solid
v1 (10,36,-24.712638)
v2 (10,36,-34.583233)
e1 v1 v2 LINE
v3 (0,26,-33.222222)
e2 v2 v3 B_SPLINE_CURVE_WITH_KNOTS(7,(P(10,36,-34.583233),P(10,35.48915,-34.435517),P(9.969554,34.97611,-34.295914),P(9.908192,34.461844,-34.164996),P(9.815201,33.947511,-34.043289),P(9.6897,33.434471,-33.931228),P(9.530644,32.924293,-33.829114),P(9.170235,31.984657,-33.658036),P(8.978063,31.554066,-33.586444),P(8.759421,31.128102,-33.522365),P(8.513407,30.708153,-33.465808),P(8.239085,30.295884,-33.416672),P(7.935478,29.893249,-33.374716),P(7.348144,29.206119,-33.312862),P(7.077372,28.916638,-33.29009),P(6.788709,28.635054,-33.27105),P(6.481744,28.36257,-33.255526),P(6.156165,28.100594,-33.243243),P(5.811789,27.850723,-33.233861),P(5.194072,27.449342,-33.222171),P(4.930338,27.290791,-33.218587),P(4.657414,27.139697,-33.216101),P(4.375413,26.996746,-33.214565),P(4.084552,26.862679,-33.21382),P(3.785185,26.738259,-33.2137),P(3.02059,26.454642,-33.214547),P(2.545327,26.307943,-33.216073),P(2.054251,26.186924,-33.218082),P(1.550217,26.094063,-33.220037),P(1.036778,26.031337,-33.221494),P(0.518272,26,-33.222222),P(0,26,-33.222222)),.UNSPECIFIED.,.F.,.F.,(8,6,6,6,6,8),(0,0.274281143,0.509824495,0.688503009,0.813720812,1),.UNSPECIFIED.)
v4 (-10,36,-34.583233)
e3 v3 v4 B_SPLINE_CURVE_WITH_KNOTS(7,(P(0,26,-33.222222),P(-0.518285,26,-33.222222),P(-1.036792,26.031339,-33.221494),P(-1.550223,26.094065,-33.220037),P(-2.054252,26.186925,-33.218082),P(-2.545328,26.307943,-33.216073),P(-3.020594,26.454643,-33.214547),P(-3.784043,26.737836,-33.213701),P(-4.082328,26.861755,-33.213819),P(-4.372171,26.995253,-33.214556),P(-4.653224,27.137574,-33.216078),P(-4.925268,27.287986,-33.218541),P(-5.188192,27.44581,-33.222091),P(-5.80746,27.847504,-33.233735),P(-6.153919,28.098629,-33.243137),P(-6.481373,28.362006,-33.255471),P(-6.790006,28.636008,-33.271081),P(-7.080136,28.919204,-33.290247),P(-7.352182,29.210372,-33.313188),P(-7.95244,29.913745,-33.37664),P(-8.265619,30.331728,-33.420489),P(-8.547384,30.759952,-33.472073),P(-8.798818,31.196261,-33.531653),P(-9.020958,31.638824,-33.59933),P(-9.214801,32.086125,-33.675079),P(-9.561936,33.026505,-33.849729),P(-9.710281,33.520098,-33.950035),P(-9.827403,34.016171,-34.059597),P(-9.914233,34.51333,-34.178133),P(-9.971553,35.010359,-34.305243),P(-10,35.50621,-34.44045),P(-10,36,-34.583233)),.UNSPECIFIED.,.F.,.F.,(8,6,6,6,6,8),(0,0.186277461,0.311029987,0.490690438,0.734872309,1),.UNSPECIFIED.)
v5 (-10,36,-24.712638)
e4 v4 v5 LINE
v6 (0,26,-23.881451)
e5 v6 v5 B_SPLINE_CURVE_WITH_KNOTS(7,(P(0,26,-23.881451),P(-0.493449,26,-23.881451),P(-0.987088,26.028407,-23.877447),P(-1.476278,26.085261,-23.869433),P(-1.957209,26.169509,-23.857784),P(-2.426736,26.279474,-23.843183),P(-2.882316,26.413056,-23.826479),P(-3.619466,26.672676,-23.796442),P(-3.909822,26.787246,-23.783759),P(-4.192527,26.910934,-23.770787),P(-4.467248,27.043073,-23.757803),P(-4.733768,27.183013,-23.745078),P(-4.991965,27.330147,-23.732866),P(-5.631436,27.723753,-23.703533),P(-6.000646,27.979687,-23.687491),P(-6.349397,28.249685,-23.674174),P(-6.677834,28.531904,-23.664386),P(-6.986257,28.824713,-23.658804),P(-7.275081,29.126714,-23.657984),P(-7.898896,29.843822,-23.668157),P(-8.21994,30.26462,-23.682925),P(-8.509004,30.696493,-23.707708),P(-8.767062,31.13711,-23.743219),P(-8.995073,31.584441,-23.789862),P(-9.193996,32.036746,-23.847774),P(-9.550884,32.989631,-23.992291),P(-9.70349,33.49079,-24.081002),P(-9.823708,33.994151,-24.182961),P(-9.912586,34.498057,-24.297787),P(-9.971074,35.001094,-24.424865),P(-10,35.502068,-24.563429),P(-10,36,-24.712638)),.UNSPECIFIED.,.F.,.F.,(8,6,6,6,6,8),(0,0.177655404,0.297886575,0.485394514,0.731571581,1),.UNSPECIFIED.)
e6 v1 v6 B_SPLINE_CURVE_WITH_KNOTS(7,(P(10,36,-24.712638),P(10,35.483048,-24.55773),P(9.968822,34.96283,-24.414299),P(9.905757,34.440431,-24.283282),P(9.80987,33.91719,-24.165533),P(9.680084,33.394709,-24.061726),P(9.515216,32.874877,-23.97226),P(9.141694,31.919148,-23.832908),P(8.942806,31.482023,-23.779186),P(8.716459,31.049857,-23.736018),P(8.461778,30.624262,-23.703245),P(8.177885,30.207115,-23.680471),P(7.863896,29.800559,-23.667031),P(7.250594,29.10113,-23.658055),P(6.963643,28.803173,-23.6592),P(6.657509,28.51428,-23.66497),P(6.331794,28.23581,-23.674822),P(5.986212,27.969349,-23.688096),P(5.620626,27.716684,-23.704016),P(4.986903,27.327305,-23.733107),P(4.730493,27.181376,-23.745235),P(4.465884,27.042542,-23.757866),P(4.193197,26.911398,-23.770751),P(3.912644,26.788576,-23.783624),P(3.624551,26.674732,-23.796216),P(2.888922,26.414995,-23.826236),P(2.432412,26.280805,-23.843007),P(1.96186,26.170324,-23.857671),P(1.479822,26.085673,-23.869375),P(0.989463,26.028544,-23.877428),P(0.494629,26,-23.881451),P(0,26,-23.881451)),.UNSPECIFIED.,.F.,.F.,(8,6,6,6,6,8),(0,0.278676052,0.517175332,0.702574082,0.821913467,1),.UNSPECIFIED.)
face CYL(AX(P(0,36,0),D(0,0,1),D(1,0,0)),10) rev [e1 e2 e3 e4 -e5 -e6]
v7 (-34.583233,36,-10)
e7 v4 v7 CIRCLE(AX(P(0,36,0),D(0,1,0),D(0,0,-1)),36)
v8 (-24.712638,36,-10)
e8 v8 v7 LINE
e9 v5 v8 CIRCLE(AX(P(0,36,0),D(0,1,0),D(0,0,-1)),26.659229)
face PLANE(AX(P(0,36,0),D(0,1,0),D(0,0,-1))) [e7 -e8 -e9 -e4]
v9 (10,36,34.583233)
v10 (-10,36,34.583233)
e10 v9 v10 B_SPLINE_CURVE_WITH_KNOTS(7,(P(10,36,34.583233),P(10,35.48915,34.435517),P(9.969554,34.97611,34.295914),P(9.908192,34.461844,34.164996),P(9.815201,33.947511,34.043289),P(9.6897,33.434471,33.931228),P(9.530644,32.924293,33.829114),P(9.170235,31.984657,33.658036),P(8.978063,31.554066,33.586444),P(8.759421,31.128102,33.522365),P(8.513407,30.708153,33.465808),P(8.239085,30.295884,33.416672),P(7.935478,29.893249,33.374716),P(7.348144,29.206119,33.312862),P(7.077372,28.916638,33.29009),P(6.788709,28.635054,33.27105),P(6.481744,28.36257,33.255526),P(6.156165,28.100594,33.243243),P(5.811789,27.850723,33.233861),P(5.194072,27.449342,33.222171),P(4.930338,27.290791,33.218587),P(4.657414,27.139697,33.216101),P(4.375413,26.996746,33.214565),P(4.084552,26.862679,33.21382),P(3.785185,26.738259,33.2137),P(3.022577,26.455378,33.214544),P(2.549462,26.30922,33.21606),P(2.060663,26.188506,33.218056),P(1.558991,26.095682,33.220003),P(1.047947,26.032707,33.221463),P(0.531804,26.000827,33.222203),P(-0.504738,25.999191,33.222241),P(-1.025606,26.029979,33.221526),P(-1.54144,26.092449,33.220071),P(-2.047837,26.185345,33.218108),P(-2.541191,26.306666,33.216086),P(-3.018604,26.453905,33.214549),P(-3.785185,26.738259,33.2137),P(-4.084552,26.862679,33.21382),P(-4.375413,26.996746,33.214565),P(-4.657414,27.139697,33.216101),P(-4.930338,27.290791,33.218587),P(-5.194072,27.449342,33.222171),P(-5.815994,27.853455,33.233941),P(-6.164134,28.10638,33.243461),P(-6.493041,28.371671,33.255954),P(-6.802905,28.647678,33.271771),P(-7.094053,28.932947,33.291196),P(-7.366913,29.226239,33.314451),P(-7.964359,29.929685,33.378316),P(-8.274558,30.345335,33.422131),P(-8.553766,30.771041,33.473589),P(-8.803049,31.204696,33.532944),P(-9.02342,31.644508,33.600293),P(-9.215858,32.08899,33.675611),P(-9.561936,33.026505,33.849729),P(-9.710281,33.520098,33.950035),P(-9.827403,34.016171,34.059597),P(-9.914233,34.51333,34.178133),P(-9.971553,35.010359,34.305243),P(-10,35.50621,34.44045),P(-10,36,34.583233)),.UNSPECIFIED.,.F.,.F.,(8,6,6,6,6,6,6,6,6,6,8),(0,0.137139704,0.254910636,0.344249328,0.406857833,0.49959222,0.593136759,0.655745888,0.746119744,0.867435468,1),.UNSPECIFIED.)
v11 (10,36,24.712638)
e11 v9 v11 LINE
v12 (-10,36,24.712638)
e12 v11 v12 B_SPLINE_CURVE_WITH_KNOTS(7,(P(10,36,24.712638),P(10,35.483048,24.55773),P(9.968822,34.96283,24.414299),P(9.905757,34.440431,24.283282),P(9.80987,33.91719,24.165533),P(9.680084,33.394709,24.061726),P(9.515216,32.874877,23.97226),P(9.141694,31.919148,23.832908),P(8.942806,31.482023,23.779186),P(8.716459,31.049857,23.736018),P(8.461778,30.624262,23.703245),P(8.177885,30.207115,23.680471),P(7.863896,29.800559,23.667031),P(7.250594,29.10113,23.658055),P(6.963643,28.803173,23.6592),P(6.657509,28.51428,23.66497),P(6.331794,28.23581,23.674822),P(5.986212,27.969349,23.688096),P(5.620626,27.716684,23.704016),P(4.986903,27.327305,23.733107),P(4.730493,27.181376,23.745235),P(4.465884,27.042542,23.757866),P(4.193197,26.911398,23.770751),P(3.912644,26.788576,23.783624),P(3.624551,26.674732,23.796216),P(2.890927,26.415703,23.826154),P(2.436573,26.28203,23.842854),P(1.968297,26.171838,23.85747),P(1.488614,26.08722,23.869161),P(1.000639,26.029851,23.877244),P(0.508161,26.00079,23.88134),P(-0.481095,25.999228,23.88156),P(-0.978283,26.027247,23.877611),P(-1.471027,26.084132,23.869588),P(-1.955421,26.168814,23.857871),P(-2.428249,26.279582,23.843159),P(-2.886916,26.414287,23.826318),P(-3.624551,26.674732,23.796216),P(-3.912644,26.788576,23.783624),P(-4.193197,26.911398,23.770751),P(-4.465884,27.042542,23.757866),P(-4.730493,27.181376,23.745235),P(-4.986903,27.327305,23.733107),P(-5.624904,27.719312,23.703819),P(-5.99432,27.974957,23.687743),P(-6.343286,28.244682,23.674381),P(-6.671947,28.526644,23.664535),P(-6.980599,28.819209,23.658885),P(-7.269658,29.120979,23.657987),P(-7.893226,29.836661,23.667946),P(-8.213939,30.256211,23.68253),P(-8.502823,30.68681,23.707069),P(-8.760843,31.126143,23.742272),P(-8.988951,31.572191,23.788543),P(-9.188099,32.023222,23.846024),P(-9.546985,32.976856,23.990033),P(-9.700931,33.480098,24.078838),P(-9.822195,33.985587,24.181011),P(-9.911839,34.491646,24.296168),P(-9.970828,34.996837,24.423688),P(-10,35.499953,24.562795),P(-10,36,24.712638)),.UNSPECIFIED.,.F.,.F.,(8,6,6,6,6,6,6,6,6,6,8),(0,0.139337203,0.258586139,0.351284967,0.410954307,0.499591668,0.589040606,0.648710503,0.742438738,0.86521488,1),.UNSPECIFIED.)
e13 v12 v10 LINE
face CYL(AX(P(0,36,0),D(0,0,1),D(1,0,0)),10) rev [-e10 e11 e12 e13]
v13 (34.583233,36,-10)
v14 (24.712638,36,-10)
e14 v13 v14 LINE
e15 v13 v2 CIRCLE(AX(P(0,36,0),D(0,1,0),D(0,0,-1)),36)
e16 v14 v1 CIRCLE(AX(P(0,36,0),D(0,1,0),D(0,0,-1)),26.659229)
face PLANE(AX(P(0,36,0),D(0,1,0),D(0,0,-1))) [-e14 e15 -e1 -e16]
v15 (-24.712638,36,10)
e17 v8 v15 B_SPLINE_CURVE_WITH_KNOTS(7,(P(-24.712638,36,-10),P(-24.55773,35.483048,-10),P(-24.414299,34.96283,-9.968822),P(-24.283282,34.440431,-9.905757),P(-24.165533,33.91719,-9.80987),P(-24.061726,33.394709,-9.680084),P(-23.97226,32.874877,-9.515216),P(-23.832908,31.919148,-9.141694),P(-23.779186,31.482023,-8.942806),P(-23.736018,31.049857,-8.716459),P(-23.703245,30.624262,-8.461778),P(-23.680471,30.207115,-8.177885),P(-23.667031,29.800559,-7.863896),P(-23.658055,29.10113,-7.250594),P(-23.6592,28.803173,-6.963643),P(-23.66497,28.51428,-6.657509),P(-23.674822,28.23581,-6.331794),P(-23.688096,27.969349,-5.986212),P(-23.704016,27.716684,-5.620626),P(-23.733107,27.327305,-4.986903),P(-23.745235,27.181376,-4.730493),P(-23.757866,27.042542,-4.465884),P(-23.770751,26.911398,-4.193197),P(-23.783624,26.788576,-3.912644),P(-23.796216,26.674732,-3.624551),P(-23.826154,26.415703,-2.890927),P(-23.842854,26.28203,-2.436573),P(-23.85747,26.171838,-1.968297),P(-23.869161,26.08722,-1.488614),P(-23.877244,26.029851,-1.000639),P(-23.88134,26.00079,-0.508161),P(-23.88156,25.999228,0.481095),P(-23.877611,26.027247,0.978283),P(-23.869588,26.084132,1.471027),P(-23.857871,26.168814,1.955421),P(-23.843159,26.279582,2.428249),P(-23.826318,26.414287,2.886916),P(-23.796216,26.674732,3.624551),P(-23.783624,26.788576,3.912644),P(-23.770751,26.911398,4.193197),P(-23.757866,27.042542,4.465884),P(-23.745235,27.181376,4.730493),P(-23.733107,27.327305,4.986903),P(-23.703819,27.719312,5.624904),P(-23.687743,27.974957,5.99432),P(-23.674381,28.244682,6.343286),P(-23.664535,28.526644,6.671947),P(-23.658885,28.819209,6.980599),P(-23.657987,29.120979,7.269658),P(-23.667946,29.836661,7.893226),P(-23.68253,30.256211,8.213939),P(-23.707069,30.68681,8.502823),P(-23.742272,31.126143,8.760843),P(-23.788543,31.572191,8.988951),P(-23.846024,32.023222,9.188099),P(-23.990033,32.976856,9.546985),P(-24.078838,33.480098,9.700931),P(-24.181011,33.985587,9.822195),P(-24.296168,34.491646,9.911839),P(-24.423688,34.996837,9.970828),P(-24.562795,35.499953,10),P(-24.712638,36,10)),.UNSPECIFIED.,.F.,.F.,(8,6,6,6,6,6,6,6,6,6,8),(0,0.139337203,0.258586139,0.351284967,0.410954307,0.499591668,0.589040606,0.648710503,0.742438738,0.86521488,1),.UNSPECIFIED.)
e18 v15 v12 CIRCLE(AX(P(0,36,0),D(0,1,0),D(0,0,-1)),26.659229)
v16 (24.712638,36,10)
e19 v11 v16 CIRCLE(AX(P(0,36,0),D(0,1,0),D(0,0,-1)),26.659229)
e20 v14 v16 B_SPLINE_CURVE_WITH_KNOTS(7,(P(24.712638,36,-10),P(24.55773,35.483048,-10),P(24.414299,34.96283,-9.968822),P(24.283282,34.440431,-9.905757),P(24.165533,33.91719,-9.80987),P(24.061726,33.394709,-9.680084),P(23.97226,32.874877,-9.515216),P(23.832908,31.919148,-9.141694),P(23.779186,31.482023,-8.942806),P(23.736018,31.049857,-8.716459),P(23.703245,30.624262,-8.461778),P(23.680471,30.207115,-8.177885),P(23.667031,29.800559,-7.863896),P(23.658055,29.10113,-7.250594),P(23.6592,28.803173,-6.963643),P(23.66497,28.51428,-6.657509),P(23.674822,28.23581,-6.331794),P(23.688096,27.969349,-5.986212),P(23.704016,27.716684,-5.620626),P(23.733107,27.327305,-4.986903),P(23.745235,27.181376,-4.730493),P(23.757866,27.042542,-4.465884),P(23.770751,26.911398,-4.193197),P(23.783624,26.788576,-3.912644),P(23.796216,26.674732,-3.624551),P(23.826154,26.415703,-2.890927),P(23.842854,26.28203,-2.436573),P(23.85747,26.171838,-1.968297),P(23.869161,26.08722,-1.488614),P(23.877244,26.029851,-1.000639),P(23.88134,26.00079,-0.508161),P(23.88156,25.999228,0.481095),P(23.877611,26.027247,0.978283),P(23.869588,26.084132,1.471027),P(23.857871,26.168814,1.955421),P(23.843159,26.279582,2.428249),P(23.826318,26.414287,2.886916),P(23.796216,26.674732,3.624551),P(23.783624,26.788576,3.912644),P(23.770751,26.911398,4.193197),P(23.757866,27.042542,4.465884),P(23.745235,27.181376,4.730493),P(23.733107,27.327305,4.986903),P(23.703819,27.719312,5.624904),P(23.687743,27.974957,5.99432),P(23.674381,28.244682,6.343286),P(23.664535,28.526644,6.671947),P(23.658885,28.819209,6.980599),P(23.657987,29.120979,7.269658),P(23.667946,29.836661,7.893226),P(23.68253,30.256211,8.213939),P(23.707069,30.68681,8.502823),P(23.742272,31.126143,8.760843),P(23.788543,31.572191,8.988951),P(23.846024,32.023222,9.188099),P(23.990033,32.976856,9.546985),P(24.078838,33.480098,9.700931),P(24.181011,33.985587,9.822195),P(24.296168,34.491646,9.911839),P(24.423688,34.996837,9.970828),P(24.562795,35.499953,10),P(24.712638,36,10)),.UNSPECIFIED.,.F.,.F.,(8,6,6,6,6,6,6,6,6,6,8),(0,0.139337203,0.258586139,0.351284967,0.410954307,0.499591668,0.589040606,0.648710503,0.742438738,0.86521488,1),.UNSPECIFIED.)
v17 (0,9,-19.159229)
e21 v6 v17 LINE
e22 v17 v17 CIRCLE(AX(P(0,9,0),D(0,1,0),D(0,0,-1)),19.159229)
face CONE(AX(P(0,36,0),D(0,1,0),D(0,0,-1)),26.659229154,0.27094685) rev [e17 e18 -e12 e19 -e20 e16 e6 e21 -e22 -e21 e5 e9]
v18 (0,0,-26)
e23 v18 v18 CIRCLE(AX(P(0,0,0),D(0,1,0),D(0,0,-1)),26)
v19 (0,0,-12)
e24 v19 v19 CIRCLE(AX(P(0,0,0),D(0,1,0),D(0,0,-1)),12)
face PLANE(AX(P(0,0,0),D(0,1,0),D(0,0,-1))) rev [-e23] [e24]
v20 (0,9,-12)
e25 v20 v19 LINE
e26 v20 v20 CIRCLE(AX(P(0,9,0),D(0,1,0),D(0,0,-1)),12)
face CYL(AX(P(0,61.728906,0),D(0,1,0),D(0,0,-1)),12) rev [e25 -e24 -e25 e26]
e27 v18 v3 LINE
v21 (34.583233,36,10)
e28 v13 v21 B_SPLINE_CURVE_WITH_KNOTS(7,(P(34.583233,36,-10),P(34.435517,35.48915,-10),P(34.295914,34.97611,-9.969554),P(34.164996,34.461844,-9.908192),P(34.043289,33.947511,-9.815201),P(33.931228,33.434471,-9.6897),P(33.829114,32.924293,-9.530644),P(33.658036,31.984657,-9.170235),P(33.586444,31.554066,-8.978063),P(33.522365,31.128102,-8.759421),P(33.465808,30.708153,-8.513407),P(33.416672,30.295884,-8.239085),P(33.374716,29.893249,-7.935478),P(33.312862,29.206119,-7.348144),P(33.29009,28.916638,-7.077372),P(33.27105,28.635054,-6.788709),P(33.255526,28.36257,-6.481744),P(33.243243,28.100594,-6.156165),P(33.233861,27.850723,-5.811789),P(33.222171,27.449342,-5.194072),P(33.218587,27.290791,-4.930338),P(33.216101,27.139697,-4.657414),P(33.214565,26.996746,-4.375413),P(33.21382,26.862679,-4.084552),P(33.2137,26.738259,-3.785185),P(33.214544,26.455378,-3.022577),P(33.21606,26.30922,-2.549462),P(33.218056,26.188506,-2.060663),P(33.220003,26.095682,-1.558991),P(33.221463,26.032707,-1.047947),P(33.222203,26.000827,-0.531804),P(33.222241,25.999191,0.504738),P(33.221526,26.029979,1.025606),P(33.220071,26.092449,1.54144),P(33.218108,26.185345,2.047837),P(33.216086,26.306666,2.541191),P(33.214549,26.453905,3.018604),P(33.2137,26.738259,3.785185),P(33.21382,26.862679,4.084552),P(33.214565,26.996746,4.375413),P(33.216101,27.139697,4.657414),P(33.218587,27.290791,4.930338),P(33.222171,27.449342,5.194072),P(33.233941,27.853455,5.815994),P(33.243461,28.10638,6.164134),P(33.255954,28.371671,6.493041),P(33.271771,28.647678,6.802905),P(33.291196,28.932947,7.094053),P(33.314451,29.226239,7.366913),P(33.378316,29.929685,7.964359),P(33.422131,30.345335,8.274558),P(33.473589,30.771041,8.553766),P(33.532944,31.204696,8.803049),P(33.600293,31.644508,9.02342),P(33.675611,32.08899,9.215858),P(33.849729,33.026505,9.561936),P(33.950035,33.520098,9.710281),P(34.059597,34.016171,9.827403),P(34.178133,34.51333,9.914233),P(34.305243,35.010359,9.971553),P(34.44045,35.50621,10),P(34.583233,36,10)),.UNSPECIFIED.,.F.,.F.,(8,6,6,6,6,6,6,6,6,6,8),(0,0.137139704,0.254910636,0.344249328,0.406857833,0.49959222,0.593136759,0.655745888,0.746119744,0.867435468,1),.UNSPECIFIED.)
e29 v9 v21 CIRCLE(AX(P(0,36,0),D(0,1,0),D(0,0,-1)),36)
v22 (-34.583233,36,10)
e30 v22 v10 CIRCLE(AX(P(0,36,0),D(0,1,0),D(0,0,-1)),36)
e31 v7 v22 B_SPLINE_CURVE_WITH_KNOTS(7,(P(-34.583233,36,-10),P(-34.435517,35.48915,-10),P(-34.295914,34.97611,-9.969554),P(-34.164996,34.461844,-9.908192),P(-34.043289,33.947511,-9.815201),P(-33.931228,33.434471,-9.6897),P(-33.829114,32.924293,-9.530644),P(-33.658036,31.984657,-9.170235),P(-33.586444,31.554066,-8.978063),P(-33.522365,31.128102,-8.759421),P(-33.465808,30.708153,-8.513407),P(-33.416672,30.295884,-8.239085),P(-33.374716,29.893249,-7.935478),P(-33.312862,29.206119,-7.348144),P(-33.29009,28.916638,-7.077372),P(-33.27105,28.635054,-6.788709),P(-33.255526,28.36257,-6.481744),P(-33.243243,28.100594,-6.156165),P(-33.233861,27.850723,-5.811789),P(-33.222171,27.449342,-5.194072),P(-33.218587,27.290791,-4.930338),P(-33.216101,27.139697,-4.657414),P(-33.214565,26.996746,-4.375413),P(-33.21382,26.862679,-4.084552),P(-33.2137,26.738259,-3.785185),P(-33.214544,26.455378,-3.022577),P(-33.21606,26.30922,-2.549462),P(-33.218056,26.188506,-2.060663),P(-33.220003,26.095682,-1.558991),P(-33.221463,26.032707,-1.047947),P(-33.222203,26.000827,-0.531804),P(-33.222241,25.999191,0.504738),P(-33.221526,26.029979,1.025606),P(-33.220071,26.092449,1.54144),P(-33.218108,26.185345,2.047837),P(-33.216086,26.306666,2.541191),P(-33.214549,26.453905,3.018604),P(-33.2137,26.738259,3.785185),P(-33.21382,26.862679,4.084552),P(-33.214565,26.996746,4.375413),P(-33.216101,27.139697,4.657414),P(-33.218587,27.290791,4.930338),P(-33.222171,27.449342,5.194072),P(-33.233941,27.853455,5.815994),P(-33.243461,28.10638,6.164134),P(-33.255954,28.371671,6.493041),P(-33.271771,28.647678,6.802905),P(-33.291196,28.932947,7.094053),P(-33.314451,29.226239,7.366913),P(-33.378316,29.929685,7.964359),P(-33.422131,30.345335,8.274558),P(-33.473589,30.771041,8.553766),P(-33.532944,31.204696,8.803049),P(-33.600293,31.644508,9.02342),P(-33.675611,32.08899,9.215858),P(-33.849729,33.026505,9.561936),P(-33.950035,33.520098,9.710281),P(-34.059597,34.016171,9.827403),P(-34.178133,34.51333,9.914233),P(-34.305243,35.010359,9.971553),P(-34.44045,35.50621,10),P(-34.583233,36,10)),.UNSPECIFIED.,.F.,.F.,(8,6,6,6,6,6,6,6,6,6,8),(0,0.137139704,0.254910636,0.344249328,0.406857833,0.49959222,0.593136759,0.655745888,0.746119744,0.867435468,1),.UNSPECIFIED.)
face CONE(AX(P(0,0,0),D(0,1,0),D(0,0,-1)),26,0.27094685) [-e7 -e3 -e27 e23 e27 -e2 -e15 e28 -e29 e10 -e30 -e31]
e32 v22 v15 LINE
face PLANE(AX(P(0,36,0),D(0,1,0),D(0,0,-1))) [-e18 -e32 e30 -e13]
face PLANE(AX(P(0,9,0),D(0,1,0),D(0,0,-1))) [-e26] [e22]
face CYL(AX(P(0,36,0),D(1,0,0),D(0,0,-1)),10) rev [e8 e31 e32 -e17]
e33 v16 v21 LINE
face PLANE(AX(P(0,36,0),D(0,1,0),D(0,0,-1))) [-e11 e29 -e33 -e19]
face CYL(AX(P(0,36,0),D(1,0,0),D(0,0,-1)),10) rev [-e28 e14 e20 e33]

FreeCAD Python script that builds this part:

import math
import FreeCAD as App
import Part
import Sketcher

V = App.Vector
Q = App.Units.Quantity

doc = App.newDocument("Part")
params = doc.addObject("Spreadsheet::Sheet", "Params")
for row, (alias, value) in enumerate([
    ("sketch1_width", "26 mm"),
    ("sketch1_height", "9 mm"),
    ("revolution_angle", "360 deg"),
    ("sketch2_radius", "10 mm"),
    ("pocket1_length", "126.707658 mm"),
    ("sketch3_diameter", "24 mm"),
], start=1):
    params.set(f"A{row}", alias)
    params.set(f"B{row}", "=" + value)
    params.setAlias(f"B{row}", alias)

body = doc.addObject("PartDesign::Body", "Body")

# Sketch on XY plane
sketch1 = doc.addObject("Sketcher::SketchObject", "Sketch")
body.addObject(sketch1)
sketch1.AttachmentSupport = (doc.XY_Plane, [""])
sketch1.MapMode = "FlatFace"
sketch1.addGeometry(Part.LineSegment(V(0, 9, 0), V(0, 0, 0)), False)
sketch1.addGeometry(Part.LineSegment(V(0, 0, 0), V(26, 0, 0)), False)
sketch1.addGeometry(Part.LineSegment(V(26, 0, 0), V(36, 36, 0)), False)
sketch1.addGeometry(Part.LineSegment(V(36, 36, 0), V(27, 36, 0)), False)
sketch1.addGeometry(Part.LineSegment(V(27, 36, 0), V(19, 9, 0)), False)
sketch1.addGeometry(Part.LineSegment(V(19, 9, 0), V(0, 9, 0)), False)
sketch1.addConstraint(Sketcher.Constraint("Coincident", 0, 2, 1, 1))
sketch1.addConstraint(Sketcher.Constraint("Coincident", 1, 2, 2, 1))
sketch1.addConstraint(Sketcher.Constraint("Coincident", 2, 2, 3, 1))
sketch1.addConstraint(Sketcher.Constraint("Coincident", 3, 2, 4, 1))
sketch1.addConstraint(Sketcher.Constraint("Coincident", 4, 2, 5, 1))
sketch1.addConstraint(Sketcher.Constraint("Coincident", 5, 2, 0, 1))
sketch1.addConstraint(Sketcher.Constraint("Vertical", 0))
sketch1.addConstraint(Sketcher.Constraint("Horizontal", 1))
sketch1.addConstraint(Sketcher.Constraint("Horizontal", 3))
sketch1.addConstraint(Sketcher.Constraint("Horizontal", 5))
sketch1.addConstraint(Sketcher.Constraint("Coincident", 0, 2, -1, 1))
sketch1.addConstraint(Sketcher.Constraint("Parallel", 2, 4))
sketch1.addConstraint(Sketcher.Constraint("DistanceX", 1, 1, 1, 2, Q("26 mm")))
sketch1.addConstraint(Sketcher.Constraint("DistanceY", 0, 2, 0, 1, Q("9 mm")))
sketch1.addConstraint(Sketcher.Constraint("DistanceX", -1, 1, 2, 2, Q("36 mm")))
sketch1.addConstraint(Sketcher.Constraint("DistanceY", -1, 1, 2, 2, Q("36 mm")))
sketch1.addConstraint(Sketcher.Constraint("DistanceX", 3, 2, 3, 1, Q("9.340771 mm")))
sketch1.setExpression("Constraints[12]", "Params.sketch1_width")
sketch1.setExpression("Constraints[13]", "Params.sketch1_height")
revolution = doc.addObject("PartDesign::Revolution", "Revolution")
body.addObject(revolution)
revolution.Profile = sketch1
revolution.ReferenceAxis = (sketch1, ["V_Axis"])
revolution.setExpression("Angle", "Params.revolution_angle")

# Sketch on YZ plane
sketch2 = doc.addObject("Sketcher::SketchObject", "Sketch001")
body.addObject(sketch2)
sketch2.AttachmentSupport = (doc.YZ_Plane, [""])
sketch2.MapMode = "FlatFace"
sketch2.addGeometry(Part.LineSegment(V(36, -10, 0), V(36, 10, 0)), False)
sketch2.addGeometry(Part.ArcOfCircle(Part.Circle(V(36, 0, 0), V(0, 0, 1), 10), math.radians(90), math.radians(270)), False)
sketch2.addConstraint(Sketcher.Constraint("Coincident", 0, 1, 1, 2))
sketch2.addConstraint(Sketcher.Constraint("Coincident", 1, 1, 0, 2))
sketch2.addConstraint(Sketcher.Constraint("Vertical", 0))
sketch2.addConstraint(Sketcher.Constraint("PointOnObject", 1, 3, -1))
sketch2.addConstraint(Sketcher.Constraint("Vertical", 1, 3, 0, 1))
sketch2.addConstraint(Sketcher.Constraint("Radius", 1, Q("10 mm")))
sketch2.addConstraint(Sketcher.Constraint("DistanceX", -1, 1, 1, 3, Q("36 mm")))
sketch2.setExpression("Constraints[5]", "Params.sketch2_radius")
pocket1 = doc.addObject("PartDesign::Pocket", "Pocket")
body.addObject(pocket1)
pocket1.Profile = sketch2
pocket1.setExpression("Length", "Params.pocket1_length")
pocket1.Midplane = True
doc.recompute()

polarpattern = doc.addObject("PartDesign::PolarPattern", "PolarPattern")
body.addObject(polarpattern)
polarpattern.Originals = [pocket1]
polarpattern.Axis = (doc.Y_Axis, [""])
polarpattern.Angle = 360
polarpattern.Occurrences = 4
body.Tip = polarpattern

# Sketch on XZ plane
sketch3 = doc.addObject("Sketcher::SketchObject", "Sketch002")
body.addObject(sketch3)
sketch3.AttachmentSupport = (doc.XZ_Plane, [""])
sketch3.MapMode = "FlatFace"
sketch3.addGeometry(Part.Circle(V(0, 0, 0), V(0, 0, 1), 12), False)
sketch3.addConstraint(Sketcher.Constraint("Coincident", 0, 3, -1, 1))
sketch3.addConstraint(Sketcher.Constraint("Diameter", 0, Q("24 mm")))
sketch3.setExpression("Constraints[1]", "Params.sketch3_diameter")
pocket2 = doc.addObject("PartDesign::Pocket", "Pocket001")
body.addObject(pocket2)
pocket2.Profile = sketch3
pocket2.Type = "ThroughAll"
pocket2.Midplane = True

doc.recompute()
